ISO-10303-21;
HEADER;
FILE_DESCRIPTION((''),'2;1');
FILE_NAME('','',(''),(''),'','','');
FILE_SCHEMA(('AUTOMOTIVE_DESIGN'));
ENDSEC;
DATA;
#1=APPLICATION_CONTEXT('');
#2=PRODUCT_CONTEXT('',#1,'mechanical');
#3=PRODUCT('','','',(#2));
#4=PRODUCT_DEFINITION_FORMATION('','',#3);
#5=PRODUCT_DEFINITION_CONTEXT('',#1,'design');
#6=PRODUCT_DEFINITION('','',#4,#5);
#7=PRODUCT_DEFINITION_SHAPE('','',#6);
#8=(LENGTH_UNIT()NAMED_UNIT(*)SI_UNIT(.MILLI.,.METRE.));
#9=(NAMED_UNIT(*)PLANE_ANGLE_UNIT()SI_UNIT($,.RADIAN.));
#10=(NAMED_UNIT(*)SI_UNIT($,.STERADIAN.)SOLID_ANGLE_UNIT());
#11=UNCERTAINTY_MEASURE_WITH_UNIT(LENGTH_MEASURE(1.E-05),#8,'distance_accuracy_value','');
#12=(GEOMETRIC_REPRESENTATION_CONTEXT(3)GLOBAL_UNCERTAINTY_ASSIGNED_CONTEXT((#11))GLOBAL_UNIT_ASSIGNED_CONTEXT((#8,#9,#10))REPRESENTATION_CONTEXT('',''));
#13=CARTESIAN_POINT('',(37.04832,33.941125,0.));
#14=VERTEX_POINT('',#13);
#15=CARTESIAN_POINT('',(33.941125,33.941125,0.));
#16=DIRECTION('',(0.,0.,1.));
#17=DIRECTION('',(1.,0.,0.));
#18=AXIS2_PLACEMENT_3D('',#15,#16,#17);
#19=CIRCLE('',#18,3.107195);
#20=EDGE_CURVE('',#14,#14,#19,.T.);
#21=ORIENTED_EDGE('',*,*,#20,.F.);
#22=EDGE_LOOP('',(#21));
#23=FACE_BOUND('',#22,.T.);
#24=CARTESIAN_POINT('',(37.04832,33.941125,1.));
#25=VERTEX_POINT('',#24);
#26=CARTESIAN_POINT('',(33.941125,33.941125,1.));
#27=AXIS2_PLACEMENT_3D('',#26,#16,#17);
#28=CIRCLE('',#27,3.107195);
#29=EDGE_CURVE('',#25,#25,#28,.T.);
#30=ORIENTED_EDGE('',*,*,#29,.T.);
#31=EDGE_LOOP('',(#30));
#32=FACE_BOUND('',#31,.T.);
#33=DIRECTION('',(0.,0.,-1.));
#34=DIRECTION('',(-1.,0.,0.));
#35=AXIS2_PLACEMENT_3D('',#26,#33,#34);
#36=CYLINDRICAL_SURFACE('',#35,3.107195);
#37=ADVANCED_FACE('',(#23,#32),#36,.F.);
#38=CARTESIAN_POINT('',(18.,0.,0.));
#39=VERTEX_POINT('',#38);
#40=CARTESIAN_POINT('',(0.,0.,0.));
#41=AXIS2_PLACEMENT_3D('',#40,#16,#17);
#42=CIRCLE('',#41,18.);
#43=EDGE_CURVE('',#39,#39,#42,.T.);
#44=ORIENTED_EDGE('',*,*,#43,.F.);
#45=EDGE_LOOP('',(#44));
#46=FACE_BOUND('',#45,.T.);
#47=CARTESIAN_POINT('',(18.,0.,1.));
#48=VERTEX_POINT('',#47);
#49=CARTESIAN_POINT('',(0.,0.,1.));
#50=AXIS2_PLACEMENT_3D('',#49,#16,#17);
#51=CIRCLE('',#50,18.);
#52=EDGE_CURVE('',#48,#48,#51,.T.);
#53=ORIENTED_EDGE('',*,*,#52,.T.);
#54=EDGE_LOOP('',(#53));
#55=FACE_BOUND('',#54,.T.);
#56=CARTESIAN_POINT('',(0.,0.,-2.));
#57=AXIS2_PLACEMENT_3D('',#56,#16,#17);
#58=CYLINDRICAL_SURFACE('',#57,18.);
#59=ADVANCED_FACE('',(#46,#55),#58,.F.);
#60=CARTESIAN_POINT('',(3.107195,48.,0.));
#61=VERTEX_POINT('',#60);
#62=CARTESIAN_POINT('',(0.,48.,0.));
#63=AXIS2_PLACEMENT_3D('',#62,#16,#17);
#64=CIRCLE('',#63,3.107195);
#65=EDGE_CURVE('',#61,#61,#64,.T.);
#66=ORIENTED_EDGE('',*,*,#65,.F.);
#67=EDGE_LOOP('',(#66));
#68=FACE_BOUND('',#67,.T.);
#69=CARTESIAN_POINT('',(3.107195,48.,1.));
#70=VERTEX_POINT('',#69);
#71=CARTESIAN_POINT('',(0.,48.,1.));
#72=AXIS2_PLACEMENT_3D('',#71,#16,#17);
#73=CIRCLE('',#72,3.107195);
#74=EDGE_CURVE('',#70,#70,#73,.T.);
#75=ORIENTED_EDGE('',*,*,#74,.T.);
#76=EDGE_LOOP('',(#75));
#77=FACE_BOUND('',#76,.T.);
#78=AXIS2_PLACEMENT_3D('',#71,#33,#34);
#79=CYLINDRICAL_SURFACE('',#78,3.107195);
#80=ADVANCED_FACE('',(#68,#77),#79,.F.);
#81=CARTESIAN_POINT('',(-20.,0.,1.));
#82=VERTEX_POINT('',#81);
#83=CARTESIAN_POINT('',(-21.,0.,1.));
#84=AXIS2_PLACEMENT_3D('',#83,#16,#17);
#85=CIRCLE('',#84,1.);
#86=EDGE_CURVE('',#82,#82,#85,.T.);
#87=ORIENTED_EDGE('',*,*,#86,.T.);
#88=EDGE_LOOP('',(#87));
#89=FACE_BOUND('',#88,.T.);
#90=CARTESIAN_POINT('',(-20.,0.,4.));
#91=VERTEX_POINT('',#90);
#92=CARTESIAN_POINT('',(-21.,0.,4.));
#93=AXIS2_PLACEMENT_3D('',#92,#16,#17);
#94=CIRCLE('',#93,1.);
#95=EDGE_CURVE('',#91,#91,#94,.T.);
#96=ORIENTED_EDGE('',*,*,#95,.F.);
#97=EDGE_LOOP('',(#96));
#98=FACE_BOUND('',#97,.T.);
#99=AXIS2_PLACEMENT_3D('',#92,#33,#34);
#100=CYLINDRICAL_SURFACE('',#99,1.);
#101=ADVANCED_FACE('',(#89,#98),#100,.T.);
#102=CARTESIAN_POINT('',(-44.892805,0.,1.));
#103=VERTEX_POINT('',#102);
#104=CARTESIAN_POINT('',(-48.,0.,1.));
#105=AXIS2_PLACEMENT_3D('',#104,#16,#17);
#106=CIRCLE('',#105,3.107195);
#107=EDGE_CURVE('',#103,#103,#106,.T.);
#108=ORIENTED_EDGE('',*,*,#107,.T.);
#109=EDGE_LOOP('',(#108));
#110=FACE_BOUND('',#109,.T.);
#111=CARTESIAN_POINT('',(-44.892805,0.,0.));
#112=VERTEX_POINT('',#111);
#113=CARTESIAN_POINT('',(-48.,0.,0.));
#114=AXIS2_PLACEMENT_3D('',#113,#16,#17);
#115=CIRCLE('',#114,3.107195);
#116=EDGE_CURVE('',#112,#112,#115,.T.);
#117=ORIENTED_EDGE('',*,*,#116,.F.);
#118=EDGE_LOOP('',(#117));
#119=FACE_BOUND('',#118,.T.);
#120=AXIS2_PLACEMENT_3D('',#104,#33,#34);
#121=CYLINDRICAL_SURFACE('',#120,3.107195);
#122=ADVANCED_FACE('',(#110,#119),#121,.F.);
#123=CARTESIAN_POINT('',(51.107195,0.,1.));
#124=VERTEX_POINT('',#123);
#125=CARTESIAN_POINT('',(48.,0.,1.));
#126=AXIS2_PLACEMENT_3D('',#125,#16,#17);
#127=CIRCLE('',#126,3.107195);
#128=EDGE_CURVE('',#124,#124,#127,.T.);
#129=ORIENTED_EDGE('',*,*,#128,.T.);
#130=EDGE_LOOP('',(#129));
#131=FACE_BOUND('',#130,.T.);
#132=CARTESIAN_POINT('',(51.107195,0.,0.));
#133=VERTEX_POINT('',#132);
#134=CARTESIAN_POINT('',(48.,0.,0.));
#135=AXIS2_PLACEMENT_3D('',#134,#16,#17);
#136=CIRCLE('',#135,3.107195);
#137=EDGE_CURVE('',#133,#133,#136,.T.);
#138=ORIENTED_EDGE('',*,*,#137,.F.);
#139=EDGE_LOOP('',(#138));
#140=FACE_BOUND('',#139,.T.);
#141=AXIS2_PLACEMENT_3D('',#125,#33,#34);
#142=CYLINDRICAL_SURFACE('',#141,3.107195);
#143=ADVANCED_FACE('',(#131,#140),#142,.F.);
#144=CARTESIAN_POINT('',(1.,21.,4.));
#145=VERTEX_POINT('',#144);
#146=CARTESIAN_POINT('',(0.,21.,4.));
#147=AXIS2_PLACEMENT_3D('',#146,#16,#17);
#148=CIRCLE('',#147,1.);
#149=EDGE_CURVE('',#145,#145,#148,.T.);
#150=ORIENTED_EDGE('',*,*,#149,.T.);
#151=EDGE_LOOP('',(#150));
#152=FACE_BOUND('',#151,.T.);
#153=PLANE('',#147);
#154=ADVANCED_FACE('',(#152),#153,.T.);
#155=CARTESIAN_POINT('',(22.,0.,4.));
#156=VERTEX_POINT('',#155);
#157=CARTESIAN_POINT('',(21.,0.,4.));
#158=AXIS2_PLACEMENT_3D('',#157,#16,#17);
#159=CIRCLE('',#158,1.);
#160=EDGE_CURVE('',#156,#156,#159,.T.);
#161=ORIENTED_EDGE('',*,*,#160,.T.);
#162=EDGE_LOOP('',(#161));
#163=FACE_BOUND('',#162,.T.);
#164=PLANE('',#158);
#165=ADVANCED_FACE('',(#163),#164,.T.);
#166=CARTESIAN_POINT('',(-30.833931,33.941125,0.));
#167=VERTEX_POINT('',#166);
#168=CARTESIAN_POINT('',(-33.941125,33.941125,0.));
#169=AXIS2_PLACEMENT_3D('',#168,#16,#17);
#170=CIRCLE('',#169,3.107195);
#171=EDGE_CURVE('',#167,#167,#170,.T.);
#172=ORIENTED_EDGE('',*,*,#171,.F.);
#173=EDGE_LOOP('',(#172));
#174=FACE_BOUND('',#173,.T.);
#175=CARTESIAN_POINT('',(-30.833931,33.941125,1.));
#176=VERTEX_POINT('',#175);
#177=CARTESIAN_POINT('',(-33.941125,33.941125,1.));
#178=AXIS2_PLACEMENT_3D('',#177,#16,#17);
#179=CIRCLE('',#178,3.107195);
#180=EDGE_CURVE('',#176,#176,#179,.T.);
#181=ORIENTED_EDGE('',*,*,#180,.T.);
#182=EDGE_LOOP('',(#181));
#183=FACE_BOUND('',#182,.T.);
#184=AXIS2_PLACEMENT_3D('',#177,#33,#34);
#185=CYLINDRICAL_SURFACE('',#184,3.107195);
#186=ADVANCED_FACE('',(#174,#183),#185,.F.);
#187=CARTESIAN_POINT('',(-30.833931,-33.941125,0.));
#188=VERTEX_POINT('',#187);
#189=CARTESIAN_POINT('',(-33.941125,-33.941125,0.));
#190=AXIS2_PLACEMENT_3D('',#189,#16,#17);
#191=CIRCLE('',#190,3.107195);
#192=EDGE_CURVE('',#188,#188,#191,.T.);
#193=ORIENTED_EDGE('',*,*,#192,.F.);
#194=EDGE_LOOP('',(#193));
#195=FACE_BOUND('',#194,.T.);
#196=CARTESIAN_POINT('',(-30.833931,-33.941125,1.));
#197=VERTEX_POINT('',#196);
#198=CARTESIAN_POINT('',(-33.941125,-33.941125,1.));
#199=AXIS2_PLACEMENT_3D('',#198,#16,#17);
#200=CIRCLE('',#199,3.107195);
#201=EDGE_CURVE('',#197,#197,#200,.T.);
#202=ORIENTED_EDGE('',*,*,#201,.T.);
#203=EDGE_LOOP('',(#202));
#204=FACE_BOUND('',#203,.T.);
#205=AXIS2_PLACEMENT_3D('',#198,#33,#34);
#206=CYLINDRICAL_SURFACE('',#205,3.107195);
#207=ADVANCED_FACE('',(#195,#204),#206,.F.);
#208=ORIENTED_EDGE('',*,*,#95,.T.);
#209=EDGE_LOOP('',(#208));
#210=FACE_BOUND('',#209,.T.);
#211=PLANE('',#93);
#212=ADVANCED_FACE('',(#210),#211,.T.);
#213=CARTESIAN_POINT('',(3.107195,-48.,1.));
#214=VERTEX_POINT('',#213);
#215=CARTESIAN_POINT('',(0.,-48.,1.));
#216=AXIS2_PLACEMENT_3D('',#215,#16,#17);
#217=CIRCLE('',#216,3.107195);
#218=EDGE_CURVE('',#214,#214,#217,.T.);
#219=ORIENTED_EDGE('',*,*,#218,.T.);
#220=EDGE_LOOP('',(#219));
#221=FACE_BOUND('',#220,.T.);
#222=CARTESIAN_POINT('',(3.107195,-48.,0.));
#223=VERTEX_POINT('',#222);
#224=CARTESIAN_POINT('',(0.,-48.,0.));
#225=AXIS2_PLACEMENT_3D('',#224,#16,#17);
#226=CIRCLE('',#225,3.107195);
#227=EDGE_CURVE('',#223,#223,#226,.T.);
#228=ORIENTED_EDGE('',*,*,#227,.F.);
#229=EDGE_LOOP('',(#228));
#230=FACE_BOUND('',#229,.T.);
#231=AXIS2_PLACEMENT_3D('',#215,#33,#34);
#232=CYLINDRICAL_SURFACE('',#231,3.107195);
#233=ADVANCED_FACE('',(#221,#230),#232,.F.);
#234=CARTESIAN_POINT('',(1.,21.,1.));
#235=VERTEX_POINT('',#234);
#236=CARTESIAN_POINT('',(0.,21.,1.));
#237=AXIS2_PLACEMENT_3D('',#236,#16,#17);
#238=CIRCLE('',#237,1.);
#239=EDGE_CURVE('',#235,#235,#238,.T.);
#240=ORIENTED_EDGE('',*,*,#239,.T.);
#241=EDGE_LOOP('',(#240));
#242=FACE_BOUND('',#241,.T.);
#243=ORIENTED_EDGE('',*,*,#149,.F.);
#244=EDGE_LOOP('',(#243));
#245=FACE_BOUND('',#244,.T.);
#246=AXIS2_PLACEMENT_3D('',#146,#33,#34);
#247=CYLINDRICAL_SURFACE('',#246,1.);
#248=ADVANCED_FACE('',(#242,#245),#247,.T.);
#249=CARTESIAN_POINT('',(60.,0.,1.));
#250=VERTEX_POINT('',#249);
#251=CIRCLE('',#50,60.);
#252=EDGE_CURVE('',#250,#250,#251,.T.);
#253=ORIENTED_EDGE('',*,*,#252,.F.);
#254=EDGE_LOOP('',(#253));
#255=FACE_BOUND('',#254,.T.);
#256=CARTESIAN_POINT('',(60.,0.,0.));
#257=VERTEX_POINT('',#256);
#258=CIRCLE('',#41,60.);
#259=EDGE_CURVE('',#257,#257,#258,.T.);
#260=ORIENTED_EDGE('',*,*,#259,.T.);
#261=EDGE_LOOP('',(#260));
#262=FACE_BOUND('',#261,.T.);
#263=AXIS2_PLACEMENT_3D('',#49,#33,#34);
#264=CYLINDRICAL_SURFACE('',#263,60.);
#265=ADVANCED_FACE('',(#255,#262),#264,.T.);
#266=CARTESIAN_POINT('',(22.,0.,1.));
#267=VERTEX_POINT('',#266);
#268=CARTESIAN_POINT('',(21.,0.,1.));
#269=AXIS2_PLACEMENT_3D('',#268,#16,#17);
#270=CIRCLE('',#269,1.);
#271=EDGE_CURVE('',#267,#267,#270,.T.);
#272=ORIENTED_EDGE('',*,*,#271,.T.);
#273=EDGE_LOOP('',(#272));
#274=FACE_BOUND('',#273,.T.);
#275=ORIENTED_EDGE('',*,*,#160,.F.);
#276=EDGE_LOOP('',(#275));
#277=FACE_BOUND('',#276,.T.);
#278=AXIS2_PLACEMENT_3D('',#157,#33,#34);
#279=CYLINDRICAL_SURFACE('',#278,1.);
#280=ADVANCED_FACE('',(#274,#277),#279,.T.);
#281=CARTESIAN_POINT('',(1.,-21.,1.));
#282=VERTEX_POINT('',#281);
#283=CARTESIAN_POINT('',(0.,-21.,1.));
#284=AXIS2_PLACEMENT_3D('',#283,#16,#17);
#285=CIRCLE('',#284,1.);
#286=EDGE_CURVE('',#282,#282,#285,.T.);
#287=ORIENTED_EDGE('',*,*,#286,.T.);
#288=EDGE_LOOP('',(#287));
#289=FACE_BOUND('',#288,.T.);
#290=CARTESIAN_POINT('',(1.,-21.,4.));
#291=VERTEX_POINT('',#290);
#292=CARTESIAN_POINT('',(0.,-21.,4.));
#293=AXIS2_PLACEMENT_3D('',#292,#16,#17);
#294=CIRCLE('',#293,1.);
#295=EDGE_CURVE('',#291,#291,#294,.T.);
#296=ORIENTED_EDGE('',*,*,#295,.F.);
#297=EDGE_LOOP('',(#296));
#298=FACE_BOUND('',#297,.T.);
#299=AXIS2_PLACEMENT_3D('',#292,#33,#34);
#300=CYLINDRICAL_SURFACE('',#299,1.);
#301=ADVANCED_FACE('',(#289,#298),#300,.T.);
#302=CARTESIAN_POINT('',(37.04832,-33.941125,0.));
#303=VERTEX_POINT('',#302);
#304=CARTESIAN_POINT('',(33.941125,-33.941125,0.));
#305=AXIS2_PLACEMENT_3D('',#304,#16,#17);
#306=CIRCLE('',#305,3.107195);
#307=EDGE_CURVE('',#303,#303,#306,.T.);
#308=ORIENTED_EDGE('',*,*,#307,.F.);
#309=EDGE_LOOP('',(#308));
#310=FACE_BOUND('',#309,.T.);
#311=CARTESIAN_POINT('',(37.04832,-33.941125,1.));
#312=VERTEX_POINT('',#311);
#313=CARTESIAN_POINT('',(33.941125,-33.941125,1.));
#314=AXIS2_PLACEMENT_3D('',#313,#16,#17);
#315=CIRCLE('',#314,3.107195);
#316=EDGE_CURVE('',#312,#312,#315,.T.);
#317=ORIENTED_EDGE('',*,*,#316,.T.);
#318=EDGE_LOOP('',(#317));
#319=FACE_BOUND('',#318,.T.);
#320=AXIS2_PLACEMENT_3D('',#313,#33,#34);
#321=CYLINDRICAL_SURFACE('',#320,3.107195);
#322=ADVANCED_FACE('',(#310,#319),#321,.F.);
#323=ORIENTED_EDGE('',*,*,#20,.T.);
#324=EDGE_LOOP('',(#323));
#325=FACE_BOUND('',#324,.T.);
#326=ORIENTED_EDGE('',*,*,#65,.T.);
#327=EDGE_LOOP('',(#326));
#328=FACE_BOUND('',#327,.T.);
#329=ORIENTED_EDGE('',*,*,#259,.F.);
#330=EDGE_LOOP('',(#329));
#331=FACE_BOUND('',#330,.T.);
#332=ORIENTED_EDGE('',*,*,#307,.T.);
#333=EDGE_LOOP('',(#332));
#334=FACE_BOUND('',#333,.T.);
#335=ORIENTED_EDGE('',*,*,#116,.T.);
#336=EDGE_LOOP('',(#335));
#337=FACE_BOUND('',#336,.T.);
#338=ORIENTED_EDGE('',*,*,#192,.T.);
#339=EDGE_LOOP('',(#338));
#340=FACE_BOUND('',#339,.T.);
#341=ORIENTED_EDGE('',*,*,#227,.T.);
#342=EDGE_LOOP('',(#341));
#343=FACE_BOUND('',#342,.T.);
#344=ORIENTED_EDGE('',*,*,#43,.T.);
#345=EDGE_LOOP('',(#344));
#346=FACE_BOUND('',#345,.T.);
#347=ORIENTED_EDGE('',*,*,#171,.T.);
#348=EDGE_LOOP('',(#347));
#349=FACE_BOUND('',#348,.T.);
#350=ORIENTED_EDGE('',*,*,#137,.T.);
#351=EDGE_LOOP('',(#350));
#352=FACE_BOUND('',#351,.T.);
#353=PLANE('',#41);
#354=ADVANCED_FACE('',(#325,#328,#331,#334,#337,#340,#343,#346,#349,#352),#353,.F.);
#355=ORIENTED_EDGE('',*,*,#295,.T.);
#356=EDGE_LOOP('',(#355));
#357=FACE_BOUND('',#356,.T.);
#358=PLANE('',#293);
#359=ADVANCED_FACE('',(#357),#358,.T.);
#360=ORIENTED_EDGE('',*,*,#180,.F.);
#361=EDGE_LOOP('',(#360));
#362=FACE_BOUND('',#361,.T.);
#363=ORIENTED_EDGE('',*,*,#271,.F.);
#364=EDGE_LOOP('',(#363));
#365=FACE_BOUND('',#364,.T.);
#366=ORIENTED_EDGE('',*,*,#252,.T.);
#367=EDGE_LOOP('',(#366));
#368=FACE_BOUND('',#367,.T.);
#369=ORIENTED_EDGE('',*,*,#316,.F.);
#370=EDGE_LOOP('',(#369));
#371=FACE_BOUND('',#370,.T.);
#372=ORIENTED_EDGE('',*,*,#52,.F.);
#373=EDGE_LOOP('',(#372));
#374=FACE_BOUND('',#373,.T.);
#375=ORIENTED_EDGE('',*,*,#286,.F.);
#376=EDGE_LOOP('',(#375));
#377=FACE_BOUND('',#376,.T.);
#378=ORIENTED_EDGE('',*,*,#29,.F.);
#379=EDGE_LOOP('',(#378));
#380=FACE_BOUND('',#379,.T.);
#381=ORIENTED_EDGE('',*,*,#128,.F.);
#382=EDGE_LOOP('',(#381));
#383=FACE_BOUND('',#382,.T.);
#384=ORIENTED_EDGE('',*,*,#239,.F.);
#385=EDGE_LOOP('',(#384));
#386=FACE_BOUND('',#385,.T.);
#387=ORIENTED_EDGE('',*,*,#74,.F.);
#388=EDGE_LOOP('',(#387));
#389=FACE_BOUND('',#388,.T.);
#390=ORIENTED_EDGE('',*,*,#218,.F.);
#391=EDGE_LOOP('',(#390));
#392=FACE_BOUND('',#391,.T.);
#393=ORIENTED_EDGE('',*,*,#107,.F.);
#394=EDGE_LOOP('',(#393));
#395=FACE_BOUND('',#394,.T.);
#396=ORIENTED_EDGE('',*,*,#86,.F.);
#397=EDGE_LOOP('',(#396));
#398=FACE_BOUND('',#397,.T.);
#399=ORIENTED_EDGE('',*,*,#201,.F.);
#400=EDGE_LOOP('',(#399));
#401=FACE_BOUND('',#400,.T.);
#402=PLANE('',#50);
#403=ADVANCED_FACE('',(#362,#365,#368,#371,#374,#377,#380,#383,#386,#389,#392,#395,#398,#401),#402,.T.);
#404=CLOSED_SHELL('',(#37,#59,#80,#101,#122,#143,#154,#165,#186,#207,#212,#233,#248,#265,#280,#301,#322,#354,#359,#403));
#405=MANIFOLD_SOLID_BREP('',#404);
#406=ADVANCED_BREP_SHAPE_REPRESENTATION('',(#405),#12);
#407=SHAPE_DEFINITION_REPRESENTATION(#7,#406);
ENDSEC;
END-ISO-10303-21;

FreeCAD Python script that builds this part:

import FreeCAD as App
import Part
import Sketcher

doc = App.newDocument("Part")
params = doc.addObject("Spreadsheet::Sheet", "Params")
for row, (alias, value) in enumerate([
    ("sketch1_diameter", "120 mm"),
    ("sketch1_diameter2", "25.4 mm"),
    ("pad1_length", "1 mm"),
    ("sketch2_diameter", "2 mm"),
    ("pad2_length", "3 mm"),
    ("sketch3_diameter", "36 mm"),
    ("pocket1_length", "3 mm"),
], start=1):
    params.set(f"A{row}", alias)
    params.set(f"B{row}", "=" + value)
    params.setAlias(f"B{row}", alias)

body = doc.addObject("PartDesign::Body", "Body")

# Sketch on XY plane
sketch1 = body.newObject("Sketcher::SketchObject", "Sketch")
sketch1.AttachmentSupport = (doc.getObject("XY_Plane"), [""])
sketch1.MapMode = "FlatFace"
sketch1.addGeometry(Part.Circle(App.Vector(0, 0, 0), App.Vector(0, 0, 1), 60), False)
sketch1.addGeometry(Part.Circle(App.Vector(-33.9, -33.9, 0), App.Vector(0, 0, 1), 3.1), False)
sketch1.addGeometry(Part.Circle(App.Vector(0, -48, 0), App.Vector(0, 0, 1), 3.1), False)
sketch1.addGeometry(Part.Circle(App.Vector(33.9, -33.9, 0), App.Vector(0, 0, 1), 3.1), False)
sketch1.addGeometry(Part.Circle(App.Vector(-48, 0, 0), App.Vector(0, 0, 1), 3.1), False)
sketch1.addGeometry(Part.Circle(App.Vector(-33.9, 33.9, 0), App.Vector(0, 0, 1), 3.1), False)
sketch1.addGeometry(Part.Circle(App.Vector(0, 0, 0), App.Vector(0, 0, 1), 12.7), False)
sketch1.addGeometry(Part.Circle(App.Vector(48, 0, 0), App.Vector(0, 0, 1), 3.1), False)
sketch1.addGeometry(Part.Circle(App.Vector(0, 48, 0), App.Vector(0, 0, 1), 3.1), False)
sketch1.addGeometry(Part.Circle(App.Vector(33.9, 33.9, 0), App.Vector(0, 0, 1), 3.1), False)
sketch1.addConstraint(Sketcher.Constraint("Coincident", 0, 3, -1, 1))
sketch1.addConstraint(Sketcher.Constraint("Coincident", 6, 3, -1, 1))
sketch1.addConstraint(Sketcher.Constraint("Equal", 1, 2))
sketch1.addConstraint(Sketcher.Constraint("Equal", 2, 3))
sketch1.addConstraint(Sketcher.Constraint("Equal", 3, 4))
sketch1.addConstraint(Sketcher.Constraint("Equal", 4, 5))
sketch1.addConstraint(Sketcher.Constraint("Equal", 5, 7))
sketch1.addConstraint(Sketcher.Constraint("Equal", 7, 8))
sketch1.addConstraint(Sketcher.Constraint("Equal", 8, 9))
sketch1.addConstraint(Sketcher.Constraint("Symmetric", 3, 3, 5, 3, -1, 1))
sketch1.addConstraint(Sketcher.Constraint("Symmetric", 4, 3, 7, 3, -1, 1))
sketch1.addConstraint(Sketcher.Constraint("Symmetric", 2, 3, 8, 3, -1, 1))
sketch1.addConstraint(Sketcher.Constraint("Symmetric", 1, 3, 9, 3, -1, 1))
sketch1.addConstraint(Sketcher.Constraint("Symmetric", 1, 3, 3, 3, -2))
sketch1.addConstraint(Sketcher.Constraint("PointOnObject", 2, 3, -2))
sketch1.addConstraint(Sketcher.Constraint("PointOnObject", 4, 3, -1))
sketch1.addConstraint(Sketcher.Constraint("Diameter", 0, 120.0))
sketch1.addConstraint(Sketcher.Constraint("Diameter", 6, 25.4))
sketch1.addConstraint(Sketcher.Constraint("DistanceY", 2, 3, -1, 1, 48.0))
sketch1.addConstraint(Sketcher.Constraint("DistanceX", 4, 3, -1, 1, 48.0))
sketch1.addConstraint(Sketcher.Constraint("Diameter", 1, 6.21439))
sketch1.addConstraint(Sketcher.Constraint("DistanceX", 1, 3, 3, 3, 67.882251))
sketch1.addConstraint(Sketcher.Constraint("DistanceY", 1, 3, 5, 3, 67.882251))
sketch1.setExpression("Constraints[16]", "Params.sketch1_diameter")
sketch1.setExpression("Constraints[17]", "Params.sketch1_diameter2")
pad1 = body.newObject("PartDesign::Pad", "Pad")
pad1.Profile = sketch1
pad1.setExpression("Length", "Params.pad1_length")

# Sketch on XY plane
sketch2 = body.newObject("Sketcher::SketchObject", "Sketch001")
sketch2.AttachmentSupport = (doc.getObject("XY_Plane"), [""])
sketch2.MapMode = "FlatFace"
sketch2.AttachmentOffset = App.Placement(App.Vector(0, 0, 1), App.Rotation())
sketch2.addGeometry(Part.Circle(App.Vector(0, 21, 0), App.Vector(0, 0, 1), 1), False)
sketch2.addGeometry(Part.Circle(App.Vector(21, 0, 0), App.Vector(0, 0, 1), 1), False)
sketch2.addGeometry(Part.Circle(App.Vector(0, -21, 0), App.Vector(0, 0, 1), 1), False)
sketch2.addGeometry(Part.Circle(App.Vector(-21, 0, 0), App.Vector(0, 0, 1), 1), False)
sketch2.addConstraint(Sketcher.Constraint("Equal", 0, 1))
sketch2.addConstraint(Sketcher.Constraint("Equal", 1, 2))
sketch2.addConstraint(Sketcher.Constraint("Equal", 2, 3))
sketch2.addConstraint(Sketcher.Constraint("Symmetric", 0, 3, 2, 3, -1, 1))
sketch2.addConstraint(Sketcher.Constraint("Symmetric", 1, 3, 3, 3, -1, 1))
sketch2.addConstraint(Sketcher.Constraint("PointOnObject", 0, 3, -2))
sketch2.addConstraint(Sketcher.Constraint("PointOnObject", 1, 3, -1))
sketch2.addConstraint(Sketcher.Constraint("Diameter", 0, 2.0))
sketch2.addConstraint(Sketcher.Constraint("DistanceY", -1, 1, 0, 3, 21.0))
sketch2.addConstraint(Sketcher.Constraint("DistanceX", -1, 1, 1, 3, 21.0))
sketch2.setExpression("Constraints[7]", "Params.sketch2_diameter")
pad2 = body.newObject("PartDesign::Pad", "Pad001")
pad2.Profile = sketch2
pad2.setExpression("Length", "Params.pad2_length")

# Sketch on XY plane
sketch3 = body.newObject("Sketcher::SketchObject", "Sketch002")
sketch3.AttachmentSupport = (doc.getObject("XY_Plane"), [""])
sketch3.MapMode = "FlatFace"
sketch3.AttachmentOffset = App.Placement(App.Vector(0, 0, 1), App.Rotation())
sketch3.addGeometry(Part.Circle(App.Vector(0, 0, 0), App.Vector(0, 0, 1), 18), False)
sketch3.addConstraint(Sketcher.Constraint("Coincident", 0, 3, -1, 1))
sketch3.addConstraint(Sketcher.Constraint("Diameter", 0, 36.0))
sketch3.setExpression("Constraints[1]", "Params.sketch3_diameter")
pocket1 = body.newObject("PartDesign::Pocket", "Pocket")
pocket1.Profile = sketch3
pocket1.setExpression("Length", "Params.pocket1_length")

doc.recompute()
